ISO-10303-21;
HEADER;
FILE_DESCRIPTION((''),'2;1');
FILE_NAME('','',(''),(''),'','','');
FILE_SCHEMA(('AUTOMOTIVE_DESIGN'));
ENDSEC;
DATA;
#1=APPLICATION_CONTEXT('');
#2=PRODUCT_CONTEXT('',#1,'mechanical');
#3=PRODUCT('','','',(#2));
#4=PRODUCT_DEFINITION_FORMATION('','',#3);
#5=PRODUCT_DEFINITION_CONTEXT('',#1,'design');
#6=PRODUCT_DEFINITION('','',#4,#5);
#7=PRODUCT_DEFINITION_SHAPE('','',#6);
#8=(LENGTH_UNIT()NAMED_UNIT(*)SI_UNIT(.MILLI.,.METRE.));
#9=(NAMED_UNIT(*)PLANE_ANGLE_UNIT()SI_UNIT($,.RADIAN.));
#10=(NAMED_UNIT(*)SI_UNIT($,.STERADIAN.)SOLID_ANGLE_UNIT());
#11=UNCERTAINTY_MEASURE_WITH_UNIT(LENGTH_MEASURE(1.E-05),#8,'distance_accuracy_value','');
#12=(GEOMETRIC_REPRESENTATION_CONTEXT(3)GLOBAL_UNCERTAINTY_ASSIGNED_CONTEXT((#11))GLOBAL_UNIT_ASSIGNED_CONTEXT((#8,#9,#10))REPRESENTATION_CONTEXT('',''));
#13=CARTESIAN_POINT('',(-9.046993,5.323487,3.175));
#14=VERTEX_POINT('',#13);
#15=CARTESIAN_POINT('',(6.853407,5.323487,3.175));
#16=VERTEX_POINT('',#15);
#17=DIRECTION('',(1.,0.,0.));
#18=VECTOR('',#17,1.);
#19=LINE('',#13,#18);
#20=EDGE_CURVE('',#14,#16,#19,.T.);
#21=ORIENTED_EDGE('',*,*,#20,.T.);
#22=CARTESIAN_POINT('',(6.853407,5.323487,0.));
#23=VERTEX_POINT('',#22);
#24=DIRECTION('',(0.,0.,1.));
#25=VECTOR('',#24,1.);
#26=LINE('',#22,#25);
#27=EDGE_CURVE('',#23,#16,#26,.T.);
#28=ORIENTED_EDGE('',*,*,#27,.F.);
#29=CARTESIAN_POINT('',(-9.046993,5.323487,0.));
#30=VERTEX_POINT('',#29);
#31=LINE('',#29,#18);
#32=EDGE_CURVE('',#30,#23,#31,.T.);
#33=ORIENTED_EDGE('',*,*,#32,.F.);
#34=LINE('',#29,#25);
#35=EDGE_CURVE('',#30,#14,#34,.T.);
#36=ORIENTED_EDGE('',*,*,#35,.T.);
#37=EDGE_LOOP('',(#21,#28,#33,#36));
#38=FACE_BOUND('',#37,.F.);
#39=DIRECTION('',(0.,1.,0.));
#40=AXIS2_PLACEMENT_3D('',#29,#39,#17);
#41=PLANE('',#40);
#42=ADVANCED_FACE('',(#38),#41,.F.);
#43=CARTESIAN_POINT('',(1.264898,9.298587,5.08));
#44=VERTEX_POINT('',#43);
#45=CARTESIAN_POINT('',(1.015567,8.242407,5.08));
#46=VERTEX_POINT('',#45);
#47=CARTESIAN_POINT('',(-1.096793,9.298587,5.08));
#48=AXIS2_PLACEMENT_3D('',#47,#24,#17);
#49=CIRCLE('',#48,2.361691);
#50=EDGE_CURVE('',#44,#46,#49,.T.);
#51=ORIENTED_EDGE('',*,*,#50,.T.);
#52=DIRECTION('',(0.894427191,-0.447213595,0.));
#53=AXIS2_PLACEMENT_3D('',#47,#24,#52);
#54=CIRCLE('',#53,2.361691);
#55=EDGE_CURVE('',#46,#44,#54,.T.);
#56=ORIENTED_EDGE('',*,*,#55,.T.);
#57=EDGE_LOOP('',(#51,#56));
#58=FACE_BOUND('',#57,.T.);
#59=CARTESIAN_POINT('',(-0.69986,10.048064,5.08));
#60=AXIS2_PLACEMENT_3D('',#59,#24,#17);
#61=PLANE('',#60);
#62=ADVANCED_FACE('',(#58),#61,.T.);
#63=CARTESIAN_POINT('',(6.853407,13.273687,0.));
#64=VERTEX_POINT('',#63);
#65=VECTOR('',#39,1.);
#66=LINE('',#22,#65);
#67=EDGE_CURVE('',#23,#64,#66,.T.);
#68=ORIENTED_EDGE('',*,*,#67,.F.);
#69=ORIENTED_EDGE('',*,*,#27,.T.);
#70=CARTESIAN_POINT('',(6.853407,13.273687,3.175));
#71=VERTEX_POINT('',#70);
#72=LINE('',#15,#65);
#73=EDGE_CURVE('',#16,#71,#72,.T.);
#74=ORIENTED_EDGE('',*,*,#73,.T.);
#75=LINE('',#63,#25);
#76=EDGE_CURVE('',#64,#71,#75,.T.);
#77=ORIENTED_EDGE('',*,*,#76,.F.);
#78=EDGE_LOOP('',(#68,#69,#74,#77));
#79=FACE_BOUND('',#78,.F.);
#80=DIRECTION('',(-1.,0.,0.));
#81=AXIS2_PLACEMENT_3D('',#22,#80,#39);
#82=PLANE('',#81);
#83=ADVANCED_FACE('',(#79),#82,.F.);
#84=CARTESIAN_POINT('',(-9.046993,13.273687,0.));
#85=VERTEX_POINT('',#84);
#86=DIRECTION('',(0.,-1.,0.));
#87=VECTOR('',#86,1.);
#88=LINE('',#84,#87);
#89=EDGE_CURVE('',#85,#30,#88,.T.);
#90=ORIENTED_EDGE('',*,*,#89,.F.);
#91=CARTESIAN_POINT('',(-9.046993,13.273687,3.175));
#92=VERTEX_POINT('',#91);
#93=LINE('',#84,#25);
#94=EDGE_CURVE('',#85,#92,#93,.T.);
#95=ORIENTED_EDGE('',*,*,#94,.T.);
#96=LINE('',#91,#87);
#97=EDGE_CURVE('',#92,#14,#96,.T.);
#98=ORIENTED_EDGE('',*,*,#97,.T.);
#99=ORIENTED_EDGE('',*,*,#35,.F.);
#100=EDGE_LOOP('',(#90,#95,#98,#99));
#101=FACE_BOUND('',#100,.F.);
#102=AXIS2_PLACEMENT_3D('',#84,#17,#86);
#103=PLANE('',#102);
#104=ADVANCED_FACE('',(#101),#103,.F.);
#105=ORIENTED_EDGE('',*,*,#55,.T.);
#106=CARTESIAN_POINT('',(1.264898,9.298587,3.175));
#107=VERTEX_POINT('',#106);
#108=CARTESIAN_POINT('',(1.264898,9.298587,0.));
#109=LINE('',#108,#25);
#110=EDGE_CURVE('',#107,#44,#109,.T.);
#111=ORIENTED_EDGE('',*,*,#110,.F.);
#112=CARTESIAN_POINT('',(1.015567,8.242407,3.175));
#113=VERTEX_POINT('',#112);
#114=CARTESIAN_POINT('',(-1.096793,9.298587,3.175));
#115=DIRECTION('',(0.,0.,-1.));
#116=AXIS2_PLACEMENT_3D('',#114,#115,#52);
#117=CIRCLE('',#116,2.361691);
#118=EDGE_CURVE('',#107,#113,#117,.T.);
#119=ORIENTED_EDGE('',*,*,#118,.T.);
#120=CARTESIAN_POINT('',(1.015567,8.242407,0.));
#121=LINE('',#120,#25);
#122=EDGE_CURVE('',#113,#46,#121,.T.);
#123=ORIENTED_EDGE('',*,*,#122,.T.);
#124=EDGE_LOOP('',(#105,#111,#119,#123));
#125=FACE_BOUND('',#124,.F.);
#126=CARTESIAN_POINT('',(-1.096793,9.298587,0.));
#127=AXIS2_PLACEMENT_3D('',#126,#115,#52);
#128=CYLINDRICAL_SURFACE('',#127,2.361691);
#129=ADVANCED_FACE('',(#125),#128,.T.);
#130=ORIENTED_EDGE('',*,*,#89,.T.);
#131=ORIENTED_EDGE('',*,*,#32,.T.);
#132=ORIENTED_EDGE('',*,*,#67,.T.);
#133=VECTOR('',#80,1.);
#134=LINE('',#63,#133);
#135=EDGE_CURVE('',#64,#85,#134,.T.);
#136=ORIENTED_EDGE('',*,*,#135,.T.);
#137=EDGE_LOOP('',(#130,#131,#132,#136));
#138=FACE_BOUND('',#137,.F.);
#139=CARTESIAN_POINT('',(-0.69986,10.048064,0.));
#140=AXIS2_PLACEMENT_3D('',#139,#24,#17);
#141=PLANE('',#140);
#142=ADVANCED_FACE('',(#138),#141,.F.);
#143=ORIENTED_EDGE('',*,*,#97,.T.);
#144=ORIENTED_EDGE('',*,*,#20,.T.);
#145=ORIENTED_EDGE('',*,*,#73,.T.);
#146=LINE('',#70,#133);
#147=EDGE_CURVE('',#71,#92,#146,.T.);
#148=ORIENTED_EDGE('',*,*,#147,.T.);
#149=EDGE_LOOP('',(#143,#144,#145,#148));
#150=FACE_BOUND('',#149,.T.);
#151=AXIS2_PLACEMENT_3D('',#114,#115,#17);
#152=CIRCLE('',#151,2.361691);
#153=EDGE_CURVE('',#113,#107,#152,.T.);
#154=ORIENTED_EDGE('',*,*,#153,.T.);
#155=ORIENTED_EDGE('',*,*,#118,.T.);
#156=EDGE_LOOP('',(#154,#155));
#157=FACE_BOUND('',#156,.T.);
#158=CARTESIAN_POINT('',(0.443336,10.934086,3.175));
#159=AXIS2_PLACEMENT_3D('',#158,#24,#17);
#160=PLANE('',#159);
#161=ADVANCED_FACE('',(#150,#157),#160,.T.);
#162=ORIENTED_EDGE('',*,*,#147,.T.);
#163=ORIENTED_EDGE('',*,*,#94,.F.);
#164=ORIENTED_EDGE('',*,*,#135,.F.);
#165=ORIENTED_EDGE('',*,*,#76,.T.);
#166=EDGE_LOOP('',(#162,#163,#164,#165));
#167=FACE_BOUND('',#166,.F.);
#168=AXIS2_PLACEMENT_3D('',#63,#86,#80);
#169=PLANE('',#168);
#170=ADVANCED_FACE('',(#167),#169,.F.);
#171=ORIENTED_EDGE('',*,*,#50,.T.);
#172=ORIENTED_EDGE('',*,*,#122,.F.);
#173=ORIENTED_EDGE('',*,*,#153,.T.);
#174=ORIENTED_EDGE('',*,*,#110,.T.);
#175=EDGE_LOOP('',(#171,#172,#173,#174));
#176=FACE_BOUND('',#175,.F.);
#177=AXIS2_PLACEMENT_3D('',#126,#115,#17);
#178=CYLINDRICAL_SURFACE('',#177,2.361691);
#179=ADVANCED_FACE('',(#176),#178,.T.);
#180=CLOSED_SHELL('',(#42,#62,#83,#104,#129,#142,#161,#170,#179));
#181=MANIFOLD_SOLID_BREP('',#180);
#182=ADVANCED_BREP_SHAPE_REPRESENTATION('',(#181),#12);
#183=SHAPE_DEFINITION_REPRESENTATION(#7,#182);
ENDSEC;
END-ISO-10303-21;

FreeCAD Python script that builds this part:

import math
import FreeCAD as App
import Part
import Sketcher
Q = App.Units.Quantity

doc = App.newDocument("Part")
params = doc.addObject("Spreadsheet::Sheet", "Params")
for row, (alias, value) in enumerate([
    ("sketch1_width", "0.626 in"),
    ("sketch1_height", "0.313 in"),
    ("pad1_length", "0.125 in"),
    ("pad2_length", "0.2 in"),
], start=1):
    params.set(f"A{row}", alias)
    params.set(f"B{row}", "=" + value)
    params.setAlias(f"B{row}", alias)

body = doc.addObject("PartDesign::Body", "Body")

# Sketch on XY plane
sketch1 = body.newObject("Sketcher::SketchObject", "Sketch")
sketch1.AttachmentSupport = (doc.getObject("XY_Plane"), [""])
sketch1.MapMode = "FlatFace"
sketch1.addGeometry([
    Part.LineSegment(App.Vector(7, 13, 0), App.Vector(-9, 13, 0)),
    Part.LineSegment(App.Vector(-9, 13, 0), App.Vector(-9, 5, 0)),
    Part.LineSegment(App.Vector(-9, 5, 0), App.Vector(7, 5, 0)),
    Part.LineSegment(App.Vector(7, 5, 0), App.Vector(7, 13, 0)),
], False)
sketch1.addConstraint([
    Sketcher.Constraint("Coincident", 0, 2, 1, 1),
    Sketcher.Constraint("Coincident", 1, 2, 2, 1),
    Sketcher.Constraint("Coincident", 2, 2, 3, 1),
    Sketcher.Constraint("Coincident", 3, 2, 0, 1),
    Sketcher.Constraint("Horizontal", 0),
    Sketcher.Constraint("Vertical", 1),
    Sketcher.Constraint("Horizontal", 2),
    Sketcher.Constraint("Vertical", 3),
    Sketcher.Constraint("DistanceX", 0, 2, 0, 1, Q("0.626 in")),
    Sketcher.Constraint("DistanceY", 1, 2, 1, 1, Q("0.313 in")),
    Sketcher.Constraint("DistanceX", 0, 2, -1, 1, 9.046993),
    Sketcher.Constraint("DistanceY", -1, 1, 0, 2, 13.273687),
])
sketch1.setExpression("Constraints[8]", "Params.sketch1_width")
sketch1.setExpression("Constraints[9]", "Params.sketch1_height")
pad1 = body.newObject("PartDesign::Pad", "Pad")
pad1.Profile = sketch1
pad1.setExpression("Length", "Params.pad1_length")

# Sketch on XY plane
sketch2 = body.newObject("Sketcher::SketchObject", "Sketch001")
sketch2.AttachmentSupport = (doc.getObject("XY_Plane"), [""])
sketch2.MapMode = "FlatFace"
sketch2.addGeometry([
    Part.ArcOfCircle(Part.Circle(App.Vector(-1.1, 9.3, 0), App.Vector(0, 0, 1), 2.4), math.radians(0), math.radians(333)),
    Part.ArcOfCircle(Part.Circle(App.Vector(-1.1, 9.3, 0), App.Vector(0, 0, 1), 2.4), math.radians(-27), math.radians(0)),
], False)
sketch2.addConstraint([
    Sketcher.Constraint("Tangent", 0, 1, 1, 2),
    Sketcher.Constraint("Coincident", 1, 1, 0, 2),
    Sketcher.Constraint("Horizontal", 1, 3, 0, 1),
    Sketcher.Constraint("Radius", 0, 2.361691),
    Sketcher.Constraint("DistanceX", 1, 1, 0, 1, 0.24933),
    Sketcher.Constraint("DistanceX", 0, 3, -1, 1, 1.096793),
    Sketcher.Constraint("DistanceY", -1, 1, 0, 3, 9.298587),
])
pad2 = body.newObject("PartDesign::Pad", "Pad001")
pad2.Profile = sketch2
pad2.setExpression("Length", "Params.pad2_length")

doc.recompute()
